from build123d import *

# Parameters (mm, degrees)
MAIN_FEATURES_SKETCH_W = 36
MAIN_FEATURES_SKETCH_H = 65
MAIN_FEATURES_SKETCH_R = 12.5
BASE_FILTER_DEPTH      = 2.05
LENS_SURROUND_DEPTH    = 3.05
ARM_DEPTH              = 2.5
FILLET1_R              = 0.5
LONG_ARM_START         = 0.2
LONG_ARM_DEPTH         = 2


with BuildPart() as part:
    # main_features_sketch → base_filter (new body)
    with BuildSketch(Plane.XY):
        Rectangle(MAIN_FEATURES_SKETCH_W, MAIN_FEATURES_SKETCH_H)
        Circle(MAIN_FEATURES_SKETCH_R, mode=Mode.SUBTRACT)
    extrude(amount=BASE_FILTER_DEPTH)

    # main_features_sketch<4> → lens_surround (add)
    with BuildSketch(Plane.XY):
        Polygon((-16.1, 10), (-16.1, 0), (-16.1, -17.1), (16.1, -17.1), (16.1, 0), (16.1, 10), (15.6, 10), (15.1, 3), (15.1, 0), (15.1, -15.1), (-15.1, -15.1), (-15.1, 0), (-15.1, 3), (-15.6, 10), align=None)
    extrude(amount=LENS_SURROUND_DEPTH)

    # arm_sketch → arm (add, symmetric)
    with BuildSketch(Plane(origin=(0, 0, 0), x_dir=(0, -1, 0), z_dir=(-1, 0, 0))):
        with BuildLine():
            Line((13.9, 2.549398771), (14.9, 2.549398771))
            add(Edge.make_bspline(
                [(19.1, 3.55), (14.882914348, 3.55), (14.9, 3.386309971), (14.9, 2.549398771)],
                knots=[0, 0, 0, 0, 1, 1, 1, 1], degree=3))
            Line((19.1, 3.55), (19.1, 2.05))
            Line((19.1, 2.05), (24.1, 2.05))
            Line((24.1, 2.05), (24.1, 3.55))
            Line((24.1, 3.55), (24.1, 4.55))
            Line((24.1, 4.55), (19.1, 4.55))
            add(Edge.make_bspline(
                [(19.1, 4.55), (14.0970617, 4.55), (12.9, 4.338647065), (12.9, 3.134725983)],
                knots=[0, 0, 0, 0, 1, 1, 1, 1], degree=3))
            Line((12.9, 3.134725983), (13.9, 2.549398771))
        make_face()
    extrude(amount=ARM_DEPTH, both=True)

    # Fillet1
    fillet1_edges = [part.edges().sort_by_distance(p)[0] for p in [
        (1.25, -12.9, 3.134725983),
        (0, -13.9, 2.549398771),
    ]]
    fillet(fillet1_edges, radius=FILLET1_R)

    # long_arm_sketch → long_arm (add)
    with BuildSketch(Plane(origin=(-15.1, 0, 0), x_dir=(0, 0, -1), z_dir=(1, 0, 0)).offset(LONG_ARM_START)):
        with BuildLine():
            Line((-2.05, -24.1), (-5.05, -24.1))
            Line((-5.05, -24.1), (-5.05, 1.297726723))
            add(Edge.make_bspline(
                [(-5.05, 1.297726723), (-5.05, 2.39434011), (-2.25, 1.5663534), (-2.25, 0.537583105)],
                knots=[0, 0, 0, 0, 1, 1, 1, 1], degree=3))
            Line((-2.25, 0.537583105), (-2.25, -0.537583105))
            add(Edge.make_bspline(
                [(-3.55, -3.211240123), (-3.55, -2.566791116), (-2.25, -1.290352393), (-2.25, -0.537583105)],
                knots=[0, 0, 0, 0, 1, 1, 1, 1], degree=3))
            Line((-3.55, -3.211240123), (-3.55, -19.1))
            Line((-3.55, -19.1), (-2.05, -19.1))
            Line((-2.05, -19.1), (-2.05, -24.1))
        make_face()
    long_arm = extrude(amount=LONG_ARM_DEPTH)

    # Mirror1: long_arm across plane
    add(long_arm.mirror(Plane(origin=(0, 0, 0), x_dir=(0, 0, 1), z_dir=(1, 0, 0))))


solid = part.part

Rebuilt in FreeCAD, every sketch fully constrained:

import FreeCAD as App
import Part
import Sketcher
Q = App.Units.Quantity


def edges_at(feature, points):
    """Names of the edges that pass closest to the given points."""
    edges = feature.Shape.Edges
    near = lambda p: min(range(len(edges)), key=lambda i: edges[i].distToShape(Part.Vertex(*p))[0])
    return sorted({f"Edge{near(p) + 1}" for p in points})


def add_polygon(sketch, points):
    """Adds a closed chain of lines whose ends are joined by coincident constraints."""
    first, n = sketch.GeometryCount, len(points)
    for a, b in zip(points, points[1:] + points[:1]):
        sketch.addGeometry(Part.LineSegment(App.Vector(*a, 0), App.Vector(*b, 0)), False)
    for i in range(n):
        sketch.addConstraint(Sketcher.Constraint("Coincident", first + i, 2, first + (i + 1) % n, 1))

doc = App.newDocument("Part")
body = doc.addObject("PartDesign::Body", "Body")

sketch1 = doc.addObject("Sketcher::SketchObject", "Sketch")
body.addObject(sketch1)
sketch1.AttachmentSupport = (doc.XY_Plane, [""])
sketch1.MapMode = "FlatFace"
add_polygon(sketch1, [(-18, 32), (-18, -32), (18, -32), (18, 32)])
sketch1.addGeometry(Part.Circle(App.Vector(0, 0, 0), App.Vector(0, 0, 1), 12), False)
sketch1.addConstraint([
    Sketcher.Constraint("Vertical", 0),
    Sketcher.Constraint("Horizontal", 1),
    Sketcher.Constraint("Vertical", 2),
    Sketcher.Constraint("Horizontal", 3),
    Sketcher.Constraint("Coincident", 4, 3, -1, 1),
    Sketcher.Constraint("Symmetric", 0, 2, 2, 2, -1, 1),
    Sketcher.Constraint("Diameter", 4, Q("25 mm")),
    Sketcher.Constraint("DistanceX", 1, 1, 1, 2, Q("36 mm")),
    Sketcher.Constraint("DistanceY", 0, 2, 0, 1, Q("65 mm")),
])
pad1 = doc.addObject("PartDesign::Pad", "Pad")
body.addObject(pad1)
pad1.Profile = sketch1
pad1.Length = 2.05

sketch2 = doc.addObject("Sketcher::SketchObject", "Sketch001")
body.addObject(sketch2)
sketch2.AttachmentSupport = (doc.XY_Plane, [""])
sketch2.MapMode = "FlatFace"
add_polygon(sketch2, [(-16.1, 10), (-16.1, -17.1), (16.1, -17.1), (16.1, 10), (15.6, 10), (15.1, 3), (15.1, -15.1), (-15.1, -15.1), (-15.1, 3), (-15.6, 10)])
sketch2.addConstraint([
    Sketcher.Constraint("Vertical", 0),
    Sketcher.Constraint("Horizontal", 1),
    Sketcher.Constraint("Vertical", 2),
    Sketcher.Constraint("Horizontal", 3),
    Sketcher.Constraint("Vertical", 5),
    Sketcher.Constraint("Horizontal", 6),
    Sketcher.Constraint("Vertical", 7),
    Sketcher.Constraint("Horizontal", 9),
    Sketcher.Constraint("Symmetric", 4, 2, 7, 2, -2),
    Sketcher.Constraint("Symmetric", 3, 2, 8, 2, -2),
    Sketcher.Constraint("Equal", 3, 9),
    Sketcher.Constraint("DistanceX", 1, 1, 1, 2, Q("32.2 mm")),
    Sketcher.Constraint("DistanceX", 3, 2, 3, 1, Q("0.5 mm")),
    Sketcher.Constraint("DistanceX", 6, 2, 6, 1, Q("30.2 mm")),
    Sketcher.Constraint("DistanceY", 0, 2, 0, 1, Q("27.1 mm")),
    Sketcher.Constraint("DistanceY", 5, 2, 5, 1, Q("18.1 mm")),
    Sketcher.Constraint("DistanceY", -1, 1, 2, 2, Q("10 mm")),
    Sketcher.Constraint("DistanceY", -1, 1, 4, 2, Q("3 mm")),
])
pad2 = doc.addObject("PartDesign::Pad", "Pad001")
body.addObject(pad2)
pad2.Profile = sketch2
pad2.Length = 3.05

sketch3 = doc.addObject("Sketcher::SketchObject", "Sketch002")
body.addObject(sketch3)
sketch3.AttachmentSupport = (doc.YZ_Plane, [""])
sketch3.MapMode = "FlatFace"
sketch3.addGeometry([
    Part.LineSegment(App.Vector(-13.9, 2.549399, 0), App.Vector(-14.9, 2.549399, 0)),
    Part.BSplineCurve([App.Vector(-19.1, 3.55, 0), App.Vector(-14.882914, 3.55, 0), App.Vector(-14.9, 3.38631, 0), App.Vector(-14.9, 2.549399, 0)], [4, 4], [0, 1], False, 3, [1, 1, 1, 1], False),
    Part.LineSegment(App.Vector(-19.1, 3.55, 0), App.Vector(-19.1, 2.05, 0)),
    Part.LineSegment(App.Vector(-19.1, 2.05, 0), App.Vector(-24.1, 2.05, 0)),
    Part.LineSegment(App.Vector(-24.1, 2.05, 0), App.Vector(-24.1, 4.55, 0)),
    Part.LineSegment(App.Vector(-24.1, 4.55, 0), App.Vector(-19.1, 4.55, 0)),
    Part.BSplineCurve([App.Vector(-19.1, 4.55, 0), App.Vector(-14.097062, 4.55, 0), App.Vector(-12.9, 4.338647, 0), App.Vector(-12.9, 3.134726, 0)], [4, 4], [0, 1], False, 3, [1, 1, 1, 1], False),
    Part.LineSegment(App.Vector(-12.9, 3.134726, 0), App.Vector(-13.9, 2.549399, 0)),
], False)
sketch3.addConstraint([
    Sketcher.Constraint("Block", 1),
    Sketcher.Constraint("Block", 6),
    Sketcher.Constraint("Coincident", 0, 2, 1, 2),
    Sketcher.Constraint("Coincident", 1, 1, 2, 1),
    Sketcher.Constraint("Coincident", 2, 2, 3, 1),
    Sketcher.Constraint("Coincident", 3, 2, 4, 1),
    Sketcher.Constraint("Coincident", 4, 2, 5, 1),
    Sketcher.Constraint("Coincident", 5, 2, 6, 1),
    Sketcher.Constraint("Coincident", 6, 2, 7, 1),
    Sketcher.Constraint("Coincident", 7, 2, 0, 1),
    Sketcher.Constraint("Horizontal", 0),
    Sketcher.Constraint("Vertical", 2),
    Sketcher.Constraint("Horizontal", 3),
    Sketcher.Constraint("Vertical", 4),
    Sketcher.Constraint("Horizontal", 5),
    Sketcher.Constraint("DistanceX", 0, 2, 0, 1, Q("1 mm")),
    Sketcher.Constraint("DistanceX", 3, 2, 3, 1, Q("5 mm")),
    Sketcher.Constraint("DistanceY", 2, 2, 2, 1, Q("1.5 mm")),
])
pad3 = doc.addObject("PartDesign::Pad", "Pad002")
body.addObject(pad3)
pad3.Profile = sketch3
pad3.Length = 5
pad3.Midplane = True
doc.recompute()

fillet = doc.addObject("PartDesign::Fillet", "Fillet")
body.addObject(fillet)
fillet.Base = (pad3, edges_at(pad3, [(1.25, -12.9, 3.135), (0, -13.9, 2.549)]))
fillet.Radius = 0.5

sketch4 = doc.addObject("Sketcher::SketchObject", "Sketch003")
body.addObject(sketch4)
sketch4.AttachmentSupport = (doc.YZ_Plane, [""])
sketch4.MapMode = "FlatFace"
sketch4.AttachmentOffset = App.Placement(App.Vector(0, 0, -14.9), App.Rotation())
sketch4.addGeometry([
    Part.LineSegment(App.Vector(-24.1, 5.05, 0), App.Vector(-24.1, 2.05, 0)),
    Part.LineSegment(App.Vector(-24.1, 2.05, 0), App.Vector(-19.1, 2.05, 0)),
    Part.LineSegment(App.Vector(-19.1, 2.05, 0), App.Vector(-19.1, 3.55, 0)),
    Part.LineSegment(App.Vector(-19.1, 3.55, 0), App.Vector(-3.21124, 3.55, 0)),
    Part.BSplineCurve([App.Vector(-3.21124, 3.55, 0), App.Vector(-2.566791, 3.55, 0), App.Vector(-1.290352, 2.25, 0), App.Vector(-0.537583, 2.25, 0)], [4, 4], [0, 1], False, 3, [1, 1, 1, 1], False),
    Part.LineSegment(App.Vector(-0.537583, 2.25, 0), App.Vector(0.537583, 2.25, 0)),
    Part.BSplineCurve([App.Vector(1.297727, 5.05, 0), App.Vector(2.39434, 5.05, 0), App.Vector(1.566353, 2.25, 0), App.Vector(0.537583, 2.25, 0)], [4, 4], [0, 1], False, 3, [1, 1, 1, 1], False),
    Part.LineSegment(App.Vector(1.297727, 5.05, 0), App.Vector(-24.1, 5.05, 0)),
], False)
sketch4.addConstraint([
    Sketcher.Constraint("Block", 4),
    Sketcher.Constraint("Block", 6),
    Sketcher.Constraint("Coincident", 0, 2, 1, 1),
    Sketcher.Constraint("Coincident", 1, 2, 2, 1),
    Sketcher.Constraint("Coincident", 2, 2, 3, 1),
    Sketcher.Constraint("Coincident", 3, 2, 4, 1),
    Sketcher.Constraint("Coincident", 4, 2, 5, 1),
    Sketcher.Constraint("Coincident", 5, 2, 6, 2),
    Sketcher.Constraint("Coincident", 6, 1, 7, 1),
    Sketcher.Constraint("Coincident", 7, 2, 0, 1),
    Sketcher.Constraint("Vertical", 0),
    Sketcher.Constraint("Horizontal", 1),
    Sketcher.Constraint("Vertical", 2),
    Sketcher.Constraint("Horizontal", 3),
    Sketcher.Constraint("Horizontal", 7),
    Sketcher.Constraint("DistanceX", 1, 1, 1, 2, Q("5 mm")),
    Sketcher.Constraint("DistanceY", 0, 2, 0, 1, Q("3 mm")),
    Sketcher.Constraint("DistanceX", 0, 2, -1, 1, Q("24.1 mm")),
])
pad4 = doc.addObject("PartDesign::Pad", "Pad003")
body.addObject(pad4)
pad4.Profile = sketch4
pad4.Length = 2
doc.recompute()

mirrored = doc.addObject("PartDesign::Mirrored", "Mirrored")
body.addObject(mirrored)
mirrored.Originals = [pad4]
mirrored.MirrorPlane = (doc.YZ_Plane, [""])
body.Tip = mirrored

doc.recompute()
